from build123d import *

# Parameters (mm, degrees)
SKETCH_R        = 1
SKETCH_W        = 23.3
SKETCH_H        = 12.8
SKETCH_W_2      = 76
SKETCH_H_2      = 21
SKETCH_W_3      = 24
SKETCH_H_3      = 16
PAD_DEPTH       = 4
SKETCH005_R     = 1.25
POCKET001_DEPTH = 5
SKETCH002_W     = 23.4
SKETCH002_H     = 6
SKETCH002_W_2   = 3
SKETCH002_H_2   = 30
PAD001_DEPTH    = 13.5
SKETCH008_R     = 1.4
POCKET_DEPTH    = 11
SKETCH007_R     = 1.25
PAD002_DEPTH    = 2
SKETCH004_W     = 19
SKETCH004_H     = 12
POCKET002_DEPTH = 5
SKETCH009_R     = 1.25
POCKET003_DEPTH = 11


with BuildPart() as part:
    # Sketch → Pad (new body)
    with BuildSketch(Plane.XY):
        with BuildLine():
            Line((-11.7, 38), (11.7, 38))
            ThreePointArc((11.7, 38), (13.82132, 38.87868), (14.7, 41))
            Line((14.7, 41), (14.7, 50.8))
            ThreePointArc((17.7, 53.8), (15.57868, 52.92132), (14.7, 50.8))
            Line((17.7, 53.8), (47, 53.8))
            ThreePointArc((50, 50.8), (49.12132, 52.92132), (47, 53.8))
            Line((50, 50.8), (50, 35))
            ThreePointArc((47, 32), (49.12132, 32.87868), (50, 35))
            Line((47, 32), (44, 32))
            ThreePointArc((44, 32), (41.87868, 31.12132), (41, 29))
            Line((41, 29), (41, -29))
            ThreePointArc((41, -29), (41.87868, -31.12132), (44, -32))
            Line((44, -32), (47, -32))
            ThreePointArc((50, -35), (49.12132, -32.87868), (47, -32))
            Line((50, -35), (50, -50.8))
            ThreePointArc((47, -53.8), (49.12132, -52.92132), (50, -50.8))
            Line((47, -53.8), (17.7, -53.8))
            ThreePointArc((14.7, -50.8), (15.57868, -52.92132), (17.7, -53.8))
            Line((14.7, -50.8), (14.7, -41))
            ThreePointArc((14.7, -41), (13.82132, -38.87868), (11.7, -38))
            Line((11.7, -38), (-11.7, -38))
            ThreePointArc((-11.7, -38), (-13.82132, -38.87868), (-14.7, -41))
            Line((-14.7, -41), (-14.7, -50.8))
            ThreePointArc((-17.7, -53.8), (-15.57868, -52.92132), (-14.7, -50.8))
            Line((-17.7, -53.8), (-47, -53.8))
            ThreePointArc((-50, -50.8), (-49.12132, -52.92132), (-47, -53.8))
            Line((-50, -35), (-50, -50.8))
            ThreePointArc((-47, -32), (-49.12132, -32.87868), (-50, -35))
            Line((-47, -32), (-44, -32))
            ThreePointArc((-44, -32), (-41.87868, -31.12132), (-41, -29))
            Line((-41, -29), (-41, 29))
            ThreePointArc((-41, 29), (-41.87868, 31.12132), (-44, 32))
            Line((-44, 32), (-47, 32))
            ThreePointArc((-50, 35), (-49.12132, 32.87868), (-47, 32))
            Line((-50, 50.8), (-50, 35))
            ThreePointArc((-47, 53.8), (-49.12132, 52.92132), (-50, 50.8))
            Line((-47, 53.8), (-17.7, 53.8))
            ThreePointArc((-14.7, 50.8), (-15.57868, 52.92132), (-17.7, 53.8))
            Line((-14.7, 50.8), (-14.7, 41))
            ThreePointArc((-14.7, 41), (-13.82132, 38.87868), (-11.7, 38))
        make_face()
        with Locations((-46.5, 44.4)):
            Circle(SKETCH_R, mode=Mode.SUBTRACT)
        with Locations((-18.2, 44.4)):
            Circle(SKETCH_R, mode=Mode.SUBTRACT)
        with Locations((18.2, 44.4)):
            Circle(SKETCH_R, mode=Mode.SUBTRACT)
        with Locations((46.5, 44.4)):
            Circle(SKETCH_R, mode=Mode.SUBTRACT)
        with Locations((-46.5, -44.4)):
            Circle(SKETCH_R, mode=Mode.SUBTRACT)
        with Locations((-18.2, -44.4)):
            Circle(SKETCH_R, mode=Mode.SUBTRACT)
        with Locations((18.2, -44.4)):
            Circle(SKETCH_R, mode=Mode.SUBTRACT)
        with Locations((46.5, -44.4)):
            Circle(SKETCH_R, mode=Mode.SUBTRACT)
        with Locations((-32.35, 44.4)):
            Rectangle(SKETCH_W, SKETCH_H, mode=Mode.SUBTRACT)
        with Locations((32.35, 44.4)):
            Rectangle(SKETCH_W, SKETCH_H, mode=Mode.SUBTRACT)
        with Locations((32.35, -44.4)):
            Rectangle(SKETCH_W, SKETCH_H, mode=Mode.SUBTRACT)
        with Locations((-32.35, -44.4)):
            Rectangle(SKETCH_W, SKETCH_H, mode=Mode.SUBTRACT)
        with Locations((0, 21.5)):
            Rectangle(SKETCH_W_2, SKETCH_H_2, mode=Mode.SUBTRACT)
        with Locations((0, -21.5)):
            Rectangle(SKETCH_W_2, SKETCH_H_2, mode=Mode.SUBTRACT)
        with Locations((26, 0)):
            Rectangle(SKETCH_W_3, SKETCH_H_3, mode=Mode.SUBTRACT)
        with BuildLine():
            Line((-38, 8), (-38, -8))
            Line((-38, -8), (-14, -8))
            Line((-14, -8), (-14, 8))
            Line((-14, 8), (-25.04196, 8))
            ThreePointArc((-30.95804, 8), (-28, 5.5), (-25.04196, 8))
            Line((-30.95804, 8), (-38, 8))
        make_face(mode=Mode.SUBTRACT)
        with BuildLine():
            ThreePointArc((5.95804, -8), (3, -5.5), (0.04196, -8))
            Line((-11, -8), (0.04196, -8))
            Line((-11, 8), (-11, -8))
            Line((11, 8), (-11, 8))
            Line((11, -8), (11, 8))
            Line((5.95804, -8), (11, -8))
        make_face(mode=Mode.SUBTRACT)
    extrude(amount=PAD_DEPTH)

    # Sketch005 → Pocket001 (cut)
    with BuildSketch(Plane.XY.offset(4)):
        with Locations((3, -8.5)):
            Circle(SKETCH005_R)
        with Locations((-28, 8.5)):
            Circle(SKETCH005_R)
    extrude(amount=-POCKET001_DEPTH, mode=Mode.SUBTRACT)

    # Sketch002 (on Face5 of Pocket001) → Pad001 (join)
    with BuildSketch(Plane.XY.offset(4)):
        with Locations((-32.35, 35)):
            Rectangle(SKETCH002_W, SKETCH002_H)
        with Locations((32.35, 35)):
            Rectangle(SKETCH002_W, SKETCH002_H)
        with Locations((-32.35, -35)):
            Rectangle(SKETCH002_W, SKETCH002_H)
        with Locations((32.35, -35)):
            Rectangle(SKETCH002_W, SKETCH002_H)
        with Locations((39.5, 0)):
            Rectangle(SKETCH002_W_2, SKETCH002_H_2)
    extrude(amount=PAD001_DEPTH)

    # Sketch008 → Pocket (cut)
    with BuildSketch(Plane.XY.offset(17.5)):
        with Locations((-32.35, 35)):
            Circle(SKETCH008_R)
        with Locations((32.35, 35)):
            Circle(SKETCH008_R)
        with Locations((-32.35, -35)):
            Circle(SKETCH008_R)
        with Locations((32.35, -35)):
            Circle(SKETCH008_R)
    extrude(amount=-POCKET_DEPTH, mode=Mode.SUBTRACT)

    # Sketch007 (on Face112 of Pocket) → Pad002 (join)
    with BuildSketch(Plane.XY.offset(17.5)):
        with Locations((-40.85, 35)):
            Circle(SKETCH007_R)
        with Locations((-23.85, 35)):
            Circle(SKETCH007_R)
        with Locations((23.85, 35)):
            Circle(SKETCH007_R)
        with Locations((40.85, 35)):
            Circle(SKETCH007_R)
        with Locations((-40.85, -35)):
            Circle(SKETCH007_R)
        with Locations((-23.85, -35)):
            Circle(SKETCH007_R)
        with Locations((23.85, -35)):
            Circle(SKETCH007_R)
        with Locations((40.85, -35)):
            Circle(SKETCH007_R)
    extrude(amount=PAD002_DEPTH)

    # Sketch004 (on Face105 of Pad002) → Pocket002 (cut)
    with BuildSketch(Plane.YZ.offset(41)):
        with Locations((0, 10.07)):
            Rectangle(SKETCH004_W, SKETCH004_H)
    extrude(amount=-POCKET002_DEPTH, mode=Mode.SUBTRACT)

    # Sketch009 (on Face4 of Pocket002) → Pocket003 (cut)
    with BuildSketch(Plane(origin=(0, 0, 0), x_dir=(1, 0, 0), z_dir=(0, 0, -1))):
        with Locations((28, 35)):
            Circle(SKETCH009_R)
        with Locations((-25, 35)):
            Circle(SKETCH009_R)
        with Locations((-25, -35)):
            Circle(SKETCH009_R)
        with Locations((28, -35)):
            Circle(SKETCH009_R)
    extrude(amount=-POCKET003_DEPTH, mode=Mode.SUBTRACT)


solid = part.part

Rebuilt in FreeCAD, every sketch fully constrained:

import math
import FreeCAD as App
import Part
import Sketcher

V = App.Vector
Q = App.Units.Quantity


def add_polygon(sketch, points):
    """Adds a closed chain of lines whose ends are joined by coincident constraints."""
    first, n = sketch.GeometryCount, len(points)
    for a, b in zip(points, points[1:] + points[:1]):
        sketch.addGeometry(Part.LineSegment(App.Vector(*a, 0), App.Vector(*b, 0)), False)
    for i in range(n):
        sketch.addConstraint(Sketcher.Constraint("Coincident", first + i, 2, first + (i + 1) % n, 1))

doc = App.newDocument("Part")
body = doc.addObject("PartDesign::Body", "Body")

# Sketch on XY plane
sketch1 = doc.addObject("Sketcher::SketchObject", "Sketch")
body.addObject(sketch1)
sketch1.AttachmentSupport = (doc.XY_Plane, [""])
sketch1.MapMode = "FlatFace"
sketch1.addGeometry(Part.LineSegment(V(11.7, 38, 0), V(-11.7, 38, 0)), False)  # 0
sketch1.addGeometry(Part.ArcOfCircle(Part.Circle(V(-11.699999, 41.000001, 0), V(0, 0, 1), 3.000001), math.radians(-179.999978), math.radians(-90.000022)), False)  # 1
sketch1.addGeometry(Part.LineSegment(V(-14.7, 41, 0), V(-14.7, 50.8, 0)), False)  # 2
sketch1.addGeometry(Part.ArcOfCircle(Part.Circle(V(-17.700001, 50.799999, 0), V(0, 0, 1), 3.000001), math.radians(0.000022), math.radians(89.999978)), False)  # 3
sketch1.addGeometry(Part.LineSegment(V(-17.7, 53.8, 0), V(-47, 53.8, 0)), False)  # 4
sketch1.addGeometry(Part.ArcOfCircle(Part.Circle(V(-46.999999, 50.799999, 0), V(0, 0, 1), 3.000001), math.radians(90.000022), math.radians(179.999978)), False)  # 5
sketch1.addGeometry(Part.LineSegment(V(-50, 50.8, 0), V(-50, 35, 0)), False)  # 6
sketch1.addGeometry(Part.ArcOfCircle(Part.Circle(V(-46.999999, 35.000001, 0), V(0, 0, 1), 3.000001), math.radians(-179.999978), math.radians(-90.000022)), False)  # 7
sketch1.addGeometry(Part.LineSegment(V(-47, 32, 0), V(-44, 32, 0)), False)  # 8
sketch1.addGeometry(Part.ArcOfCircle(Part.Circle(V(-44.000001, 28.999999, 0), V(0, 0, 1), 3.000001), math.radians(0.000022), math.radians(89.999978)), False)  # 9
sketch1.addGeometry(Part.LineSegment(V(-41, 29, 0), V(-41, -29, 0)), False)  # 10
sketch1.addGeometry(Part.ArcOfCircle(Part.Circle(V(-44.000001, -28.999999, 0), V(0, 0, 1), 3.000001), math.radians(-89.999978), math.radians(-0.000022)), False)  # 11
sketch1.addGeometry(Part.LineSegment(V(-44, -32, 0), V(-47, -32, 0)), False)  # 12
sketch1.addGeometry(Part.ArcOfCircle(Part.Circle(V(-46.999999, -35.000001, 0), V(0, 0, 1), 3.000001), math.radians(90.000022), math.radians(179.999978)), False)  # 13
sketch1.addGeometry(Part.LineSegment(V(-50, -35, 0), V(-50, -50.8, 0)), False)  # 14
sketch1.addGeometry(Part.ArcOfCircle(Part.Circle(V(-46.999999, -50.799999, 0), V(0, 0, 1), 3.000001), math.radians(-179.999978), math.radians(-90.000022)), False)  # 15
sketch1.addGeometry(Part.LineSegment(V(-47, -53.8, 0), V(-17.7, -53.8, 0)), False)  # 16
sketch1.addGeometry(Part.ArcOfCircle(Part.Circle(V(-17.700001, -50.799999, 0), V(0, 0, 1), 3.000001), math.radians(-89.999978), math.radians(-0.000022)), False)  # 17
sketch1.addGeometry(Part.LineSegment(V(-14.7, -50.8, 0), V(-14.7, -41, 0)), False)  # 18
sketch1.addGeometry(Part.ArcOfCircle(Part.Circle(V(-11.699999, -41.000001, 0), V(0, 0, 1), 3.000001), math.radians(90.000022), math.radians(179.999978)), False)  # 19
sketch1.addGeometry(Part.LineSegment(V(-11.7, -38, 0), V(11.7, -38, 0)), False)  # 20
sketch1.addGeometry(Part.ArcOfCircle(Part.Circle(V(11.699999, -41.000001, 0), V(0, 0, 1), 3.000001), math.radians(0.000022), math.radians(89.999978)), False)  # 21
sketch1.addGeometry(Part.LineSegment(V(14.7, -41, 0), V(14.7, -50.8, 0)), False)  # 22
sketch1.addGeometry(Part.ArcOfCircle(Part.Circle(V(17.700001, -50.799999, 0), V(0, 0, 1), 3.000001), math.radians(-179.999978), math.radians(-90.000022)), False)  # 23
sketch1.addGeometry(Part.LineSegment(V(17.7, -53.8, 0), V(47, -53.8, 0)), False)  # 24
sketch1.addGeometry(Part.ArcOfCircle(Part.Circle(V(46.999999, -50.799999, 0), V(0, 0, 1), 3.000001), math.radians(-89.999978), math.radians(-0.000022)), False)  # 25
sketch1.addGeometry(Part.LineSegment(V(50, -50.8, 0), V(50, -35, 0)), False)  # 26
sketch1.addGeometry(Part.ArcOfCircle(Part.Circle(V(46.999999, -35.000001, 0), V(0, 0, 1), 3.000001), math.radians(0.000022), math.radians(89.999978)), False)  # 27
sketch1.addGeometry(Part.LineSegment(V(47, -32, 0), V(44, -32, 0)), False)  # 28
sketch1.addGeometry(Part.ArcOfCircle(Part.Circle(V(44.000001, -28.999999, 0), V(0, 0, 1), 3.000001), math.radians(-179.999978), math.radians(-90.000022)), False)  # 29
sketch1.addGeometry(Part.LineSegment(V(41, -29, 0), V(41, 29, 0)), False)  # 30
sketch1.addGeometry(Part.ArcOfCircle(Part.Circle(V(44.000001, 28.999999, 0), V(0, 0, 1), 3.000001), math.radians(90.000022), math.radians(179.999978)), False)  # 31
sketch1.addGeometry(Part.LineSegment(V(44, 32, 0), V(47, 32, 0)), False)  # 32
sketch1.addGeometry(Part.ArcOfCircle(Part.Circle(V(46.999999, 35.000001, 0), V(0, 0, 1), 3.000001), math.radians(-89.999978), math.radians(-0.000022)), False)  # 33
sketch1.addGeometry(Part.LineSegment(V(50, 35, 0), V(50, 50.8, 0)), False)  # 34
sketch1.addGeometry(Part.ArcOfCircle(Part.Circle(V(46.999999, 50.799999, 0), V(0, 0, 1), 3.000001), math.radians(0.000022), math.radians(89.999978)), False)  # 35
sketch1.addGeometry(Part.LineSegment(V(47, 53.8, 0), V(17.7, 53.8, 0)), False)  # 36
sketch1.addGeometry(Part.ArcOfCircle(Part.Circle(V(17.700001, 50.799999, 0), V(0, 0, 1), 3.000001), math.radians(90.000022), math.radians(179.999978)), False)  # 37
sketch1.addGeometry(Part.LineSegment(V(14.7, 50.8, 0), V(14.7, 41, 0)), False)  # 38
sketch1.addGeometry(Part.ArcOfCircle(Part.Circle(V(11.699999, 41.000001, 0), V(0, 0, 1), 3.000001), math.radians(-89.999978), math.radians(-0.000022)), False)  # 39
sketch1.addGeometry(Part.Circle(V(46.5, -44.4, 0), V(0, 0, 1), 1), False)  # 40
add_polygon(sketch1, [(20.7, -50.8), (20.7, -38), (44, -38), (44, -50.8)])  # lines 41-44
sketch1.addGeometry(Part.Circle(V(18.2, -44.4, 0), V(0, 0, 1), 1), False)  # 45
add_polygon(sketch1, [(14, -8), (14, 8), (38, 8), (38, -8)])  # lines 46-49
sketch1.addGeometry(Part.Circle(V(-18.2, -44.4, 0), V(0, 0, 1), 1), False)  # 50
add_polygon(sketch1, [(-44, -50.8), (-44, -38), (-20.7, -38), (-20.7, -50.8)])  # lines 51-54
sketch1.addGeometry(Part.Circle(V(-46.5, -44.4, 0), V(0, 0, 1), 1), False)  # 55
add_polygon(sketch1, [(-38, -32), (-38, -11), (38, -11), (38, -32)])  # lines 56-59
sketch1.addGeometry(Part.ArcOfCircle(Part.Circle(V(3, -8.5, 0), V(0, 0, 1), 3), math.radians(9.59407), math.radians(170.40593)), False)  # 60
sketch1.addGeometry(Part.LineSegment(V(0.04196, -8, 0), V(-11, -8, 0)), False)  # 61
sketch1.addGeometry(Part.LineSegment(V(-11, -8, 0), V(-11, 8, 0)), False)  # 62
sketch1.addGeometry(Part.LineSegment(V(-11, 8, 0), V(11, 8, 0)), False)  # 63
sketch1.addGeometry(Part.LineSegment(V(11, 8, 0), V(11, -8, 0)), False)  # 64
sketch1.addGeometry(Part.LineSegment(V(11, -8, 0), V(5.95804, -8, 0)), False)  # 65
sketch1.addGeometry(Part.LineSegment(V(-38, 8, 0), V(-30.95804, 8, 0)), False)  # 66
sketch1.addGeometry(Part.ArcOfCircle(Part.Circle(V(-28, 8.5, 0), V(0, 0, 1), 3), math.radians(-170.40593), math.radians(-9.59407)), False)  # 67
sketch1.addGeometry(Part.LineSegment(V(-25.04196, 8, 0), V(-14, 8, 0)), False)  # 68
sketch1.addGeometry(Part.LineSegment(V(-14, 8, 0), V(-14, -8, 0)), False)  # 69
sketch1.addGeometry(Part.LineSegment(V(-14, -8, 0), V(-38, -8, 0)), False)  # 70
sketch1.addGeometry(Part.LineSegment(V(-38, -8, 0), V(-38, 8, 0)), False)  # 71
sketch1.addGeometry(Part.Circle(V(46.5, 44.4, 0), V(0, 0, 1), 1), False)  # 72
add_polygon(sketch1, [(20.7, 38), (20.7, 50.8), (44, 50.8), (44, 38)])  # lines 73-76
sketch1.addGeometry(Part.Circle(V(18.2, 44.4, 0), V(0, 0, 1), 1), False)  # 77
add_polygon(sketch1, [(-38, 11), (-38, 32), (38, 32), (38, 11)])  # lines 78-81
sketch1.addGeometry(Part.Circle(V(-18.2, 44.4, 0), V(0, 0, 1), 1), False)  # 82
add_polygon(sketch1, [(-44, 38), (-44, 50.8), (-20.7, 50.8), (-20.7, 38)])  # lines 83-86
sketch1.addGeometry(Part.Circle(V(-46.5, 44.4, 0), V(0, 0, 1), 1), False)  # 87
sketch1.addConstraint([
    Sketcher.Constraint("Tangent", 0, 2, 1, 2),
    Sketcher.Constraint("Tangent", 1, 1, 2, 1),
    Sketcher.Constraint("Tangent", 2, 2, 3, 1),
    Sketcher.Constraint("Tangent", 3, 2, 4, 1),
    Sketcher.Constraint("Tangent", 4, 2, 5, 1),
    Sketcher.Constraint("Tangent", 5, 2, 6, 1),
    Sketcher.Constraint("Tangent", 6, 2, 7, 1),
    Sketcher.Constraint("Tangent", 7, 2, 8, 1),
    Sketcher.Constraint("Tangent", 8, 2, 9, 2),
    Sketcher.Constraint("Tangent", 9, 1, 10, 1),
    Sketcher.Constraint("Tangent", 10, 2, 11, 2),
    Sketcher.Constraint("Tangent", 11, 1, 12, 1),
    Sketcher.Constraint("Tangent", 12, 2, 13, 1),
    Sketcher.Constraint("Tangent", 13, 2, 14, 1),
    Sketcher.Constraint("Tangent", 14, 2, 15, 1),
    Sketcher.Constraint("Tangent", 15, 2, 16, 1),
    Sketcher.Constraint("Tangent", 16, 2, 17, 1),
    Sketcher.Constraint("Tangent", 17, 2, 18, 1),
    Sketcher.Constraint("Tangent", 18, 2, 19, 2),
    Sketcher.Constraint("Tangent", 19, 1, 20, 1),
    Sketcher.Constraint("Tangent", 20, 2, 21, 2),
    Sketcher.Constraint("Tangent", 21, 1, 22, 1),
    Sketcher.Constraint("Tangent", 22, 2, 23, 1),
    Sketcher.Constraint("Tangent", 23, 2, 24, 1),
    Sketcher.Constraint("Tangent", 24, 2, 25, 1),
    Sketcher.Constraint("Tangent", 25, 2, 26, 1),
    Sketcher.Constraint("Tangent", 26, 2, 27, 1),
    Sketcher.Constraint("Tangent", 27, 2, 28, 1),
    Sketcher.Constraint("Tangent", 28, 2, 29, 2),
    Sketcher.Constraint("Tangent", 29, 1, 30, 1),
    Sketcher.Constraint("Tangent", 30, 2, 31, 2),
    Sketcher.Constraint("Tangent", 31, 1, 32, 1),
    Sketcher.Constraint("Tangent", 32, 2, 33, 1),
    Sketcher.Constraint("Tangent", 33, 2, 34, 1),
    Sketcher.Constraint("Tangent", 34, 2, 35, 1),
    Sketcher.Constraint("Tangent", 35, 2, 36, 1),
    Sketcher.Constraint("Tangent", 36, 2, 37, 1),
    Sketcher.Constraint("Tangent", 37, 2, 38, 1),
    Sketcher.Constraint("Tangent", 38, 2, 39, 2),
    Sketcher.Constraint("Tangent", 39, 1, 0, 1),
    Sketcher.Constraint("Coincident", 60, 2, 61, 1),
    Sketcher.Constraint("Coincident", 61, 2, 62, 1),
    Sketcher.Constraint("Coincident", 62, 2, 63, 1),
    Sketcher.Constraint("Coincident", 63, 2, 64, 1),
    Sketcher.Constraint("Coincident", 64, 2, 65, 1),
    Sketcher.Constraint("Coincident", 65, 2, 60, 1),
    Sketcher.Constraint("Coincident", 66, 2, 67, 1),
    Sketcher.Constraint("Coincident", 67, 2, 68, 1),
    Sketcher.Constraint("Coincident", 68, 2, 69, 1),
    Sketcher.Constraint("Coincident", 69, 2, 70, 1),
    Sketcher.Constraint("Coincident", 70, 2, 71, 1),
    Sketcher.Constraint("Coincident", 71, 2, 66, 1),
    Sketcher.Constraint("Horizontal", 0),
    Sketcher.Constraint("Vertical", 2),
    Sketcher.Constraint("Horizontal", 4),
    Sketcher.Constraint("Vertical", 6),
    Sketcher.Constraint("Horizontal", 8),
    Sketcher.Constraint("Vertical", 10),
    Sketcher.Constraint("Horizontal", 12),
    Sketcher.Constraint("Vertical", 14),
    Sketcher.Constraint("Horizontal", 16),
    Sketcher.Constraint("Vertical", 18),
    Sketcher.Constraint("Horizontal", 20),
    Sketcher.Constraint("Vertical", 22),
    Sketcher.Constraint("Horizontal", 24),
    Sketcher.Constraint("Vertical", 26),
    Sketcher.Constraint("Horizontal", 28),
    Sketcher.Constraint("Vertical", 30),
    Sketcher.Constraint("Horizontal", 32),
    Sketcher.Constraint("Vertical", 34),
    Sketcher.Constraint("Horizontal", 36),
    Sketcher.Constraint("Vertical", 38),
    Sketcher.Constraint("Vertical", 41),
    Sketcher.Constraint("Horizontal", 42),
    Sketcher.Constraint("Vertical", 43),
    Sketcher.Constraint("Horizontal", 44),
    Sketcher.Constraint("Vertical", 46),
    Sketcher.Constraint("Horizontal", 47),
    Sketcher.Constraint("Vertical", 48),
    Sketcher.Constraint("Horizontal", 49),
    Sketcher.Constraint("Vertical", 51),
    Sketcher.Constraint("Horizontal", 52),
    Sketcher.Constraint("Vertical", 53),
    Sketcher.Constraint("Horizontal", 54),
    Sketcher.Constraint("Vertical", 56),
    Sketcher.Constraint("Horizontal", 57),
    Sketcher.Constraint("Vertical", 58),
    Sketcher.Constraint("Horizontal", 59),
    Sketcher.Constraint("Horizontal", 61),
    Sketcher.Constraint("Vertical", 62),
    Sketcher.Constraint("Horizontal", 63),
    Sketcher.Constraint("Vertical", 64),
    Sketcher.Constraint("Horizontal", 65),
    Sketcher.Constraint("Horizontal", 66),
    Sketcher.Constraint("Horizontal", 68),
    Sketcher.Constraint("Vertical", 69),
    Sketcher.Constraint("Horizontal", 70),
    Sketcher.Constraint("Vertical", 71),
    Sketcher.Constraint("Vertical", 73),
    Sketcher.Constraint("Horizontal", 74),
    Sketcher.Constraint("Vertical", 75),
    Sketcher.Constraint("Horizontal", 76),
    Sketcher.Constraint("Vertical", 78),
    Sketcher.Constraint("Horizontal", 79),
    Sketcher.Constraint("Vertical", 80),
    Sketcher.Constraint("Horizontal", 81),
    Sketcher.Constraint("Vertical", 83),
    Sketcher.Constraint("Horizontal", 84),
    Sketcher.Constraint("Vertical", 85),
    Sketcher.Constraint("Horizontal", 86),
    Sketcher.Constraint("Equal", 1, 3),
    Sketcher.Constraint("Equal", 3, 5),
    Sketcher.Constraint("Equal", 5, 7),
    Sketcher.Constraint("Equal", 7, 9),
    Sketcher.Constraint("Equal", 9, 11),
    Sketcher.Constraint("Equal", 11, 13),
    Sketcher.Constraint("Equal", 13, 15),
    Sketcher.Constraint("Equal", 15, 17),
    Sketcher.Constraint("Equal", 17, 19),
    Sketcher.Constraint("Equal", 19, 21),
    Sketcher.Constraint("Equal", 21, 23),
    Sketcher.Constraint("Equal", 23, 25),
    Sketcher.Constraint("Equal", 25, 27),
    Sketcher.Constraint("Equal", 27, 29),
    Sketcher.Constraint("Equal", 29, 31),
    Sketcher.Constraint("Equal", 31, 33),
    Sketcher.Constraint("Equal", 33, 35),
    Sketcher.Constraint("Equal", 35, 37),
    Sketcher.Constraint("Equal", 37, 39),
    Sketcher.Constraint("Equal", 40, 45),
    Sketcher.Constraint("Equal", 45, 50),
    Sketcher.Constraint("Equal", 50, 55),
    Sketcher.Constraint("Equal", 39, 60),
    Sketcher.Constraint("Equal", 60, 67),
    Sketcher.Constraint("Equal", 55, 72),
    Sketcher.Constraint("Equal", 72, 77),
    Sketcher.Constraint("Equal", 77, 82),
    Sketcher.Constraint("Equal", 82, 87),
    Sketcher.Constraint("Symmetric", 1, 3, 21, 3, -1, 1),
    Sketcher.Constraint("Symmetric", 5, 3, 25, 3, -1, 1),
    Sketcher.Constraint("Symmetric", 9, 3, 29, 3, -1, 1),
    Sketcher.Constraint("Symmetric", 13, 3, 33, 3, -1, 1),
    Sketcher.Constraint("Symmetric", 17, 3, 37, 3, -1, 1),
    Sketcher.Constraint("Symmetric", 55, 3, 72, 3, -1, 1),
    Sketcher.Constraint("Symmetric", 50, 3, 77, 3, -1, 1),
    Sketcher.Constraint("Symmetric", 45, 3, 82, 3, -1, 1),
    Sketcher.Constraint("Symmetric", 40, 3, 87, 3, -1, 1),
    Sketcher.Constraint("Symmetric", 61, 2, 63, 2, -1, 1),
    Sketcher.Constraint("Symmetric", 49, 2, 68, 2, -1, 1),
    Sketcher.Constraint("Symmetric", 47, 2, 70, 2, -1, 1),
    Sketcher.Constraint("Symmetric", 53, 2, 73, 2, -1, 1),
    Sketcher.Constraint("Symmetric", 51, 2, 75, 2, -1, 1),
    Sketcher.Constraint("Symmetric", 58, 2, 78, 2, -1, 1),
    Sketcher.Constraint("Symmetric", 56, 2, 80, 2, -1, 1),
    Sketcher.Constraint("Symmetric", 43, 2, 83, 2, -1, 1),
    Sketcher.Constraint("Symmetric", 41, 2, 85, 2, -1, 1),
    Sketcher.Constraint("Symmetric", 17, 3, 23, 3, -2),
    Sketcher.Constraint("Symmetric", 13, 3, 27, 3, -2),
    Sketcher.Constraint("Symmetric", 45, 3, 50, 3, -2),
    Sketcher.Constraint("Symmetric", 40, 3, 55, 3, -2),
    Sketcher.Constraint("Symmetric", 42, 2, 51, 2, -2),
    Sketcher.Constraint("Symmetric", 44, 2, 53, 2, -2),
    Sketcher.Constraint("Horizontal", 40, 3, 45, 3),
    Sketcher.Constraint("Horizontal", 20, 2, 41, 2),
    Sketcher.Constraint("Horizontal", 25, 2, 43, 2),
    Sketcher.Constraint("Horizontal", 28, 2, 58, 2),
    Sketcher.Constraint("Horizontal", 49, 2, 60, 2),
    Sketcher.Constraint("Horizontal", 47, 2, 62, 2),
    Sketcher.Constraint("Horizontal", 61, 2, 64, 2),
    Sketcher.Constraint("Horizontal", 63, 2, 66, 2),
    Sketcher.Constraint("Vertical", 31, 1, 42, 2),
    Sketcher.Constraint("Vertical", 48, 2, 57, 2),
    Sketcher.Constraint("Vertical", 59, 2, 70, 2),
    Sketcher.Constraint("Equal", 61, 68),
    Sketcher.Constraint("Diameter", 40, Q("2 mm")),
    Sketcher.Constraint("Radius", 1, Q("3.000001 mm")),
    Sketcher.Constraint("DistanceX", 8, 1, 8, 2, Q("3 mm")),
    Sketcher.Constraint("DistanceX", 47, 1, 47, 2, Q("24 mm")),
    Sketcher.Constraint("DistanceX", 57, 1, 57, 2, Q("76 mm")),
    Sketcher.Constraint("DistanceX", 63, 1, 63, 2, Q("22 mm")),
    Sketcher.Constraint("DistanceY", 10, 2, 10, 1, Q("58 mm")),
    Sketcher.Constraint("DistanceY", 46, 1, 46, 2, Q("16 mm")),
    Sketcher.Constraint("DistanceY", 56, 1, 56, 2, Q("21 mm")),
    Sketcher.Constraint("DistanceX", 0, 2, 0, 1, Q("23.4 mm")),
    Sketcher.Constraint("DistanceX", 4, 2, 4, 1, Q("29.3 mm")),
    Sketcher.Constraint("DistanceX", 42, 1, 42, 2, Q("23.3 mm")),
    Sketcher.Constraint("DistanceY", 2, 1, 2, 2, Q("9.8 mm")),
    Sketcher.Constraint("DistanceY", 6, 2, 6, 1, Q("15.8 mm")),
    Sketcher.Constraint("DistanceX", -1, 1, 60, 3, Q("3 mm")),
    Sketcher.Constraint("DistanceX", 67, 3, -1, 1, Q("28 mm")),
    Sketcher.Constraint("DistanceX", -1, 1, 40, 3, Q("46.5 mm")),
    Sketcher.Constraint("DistanceY", 40, 3, -1, 1, Q("44.4 mm")),
    Sketcher.Constraint("DistanceX", -1, 1, 45, 3, Q("18.2 mm")),
    Sketcher.Constraint("DistanceY", 60, 3, -1, 1, Q("8.5 mm")),
])
pad1 = doc.addObject("PartDesign::Pad", "Pad")
body.addObject(pad1)
pad1.Profile = sketch1
pad1.Length = 4

# Sketch on XY plane
sketch2 = doc.addObject("Sketcher::SketchObject", "Sketch001")
body.addObject(sketch2)
sketch2.AttachmentSupport = (doc.XY_Plane, [""])
sketch2.MapMode = "FlatFace"
sketch2.AttachmentOffset = App.Placement(V(0, 0, 4), App.Rotation())
sketch2.addGeometry([
    Part.Circle(V(3, -8.5, 0), V(0, 0, 1), 1.25),
    Part.Circle(V(-28, 8.5, 0), V(0, 0, 1), 1.25),
], False)
sketch2.addConstraint([
    Sketcher.Constraint("Equal", 0, 1),
    Sketcher.Constraint("Diameter", 0, Q("2.5 mm")),
    Sketcher.Constraint("DistanceX", -1, 1, 0, 3, Q("3 mm")),
    Sketcher.Constraint("DistanceX", 1, 3, -1, 1, Q("28 mm")),
    Sketcher.Constraint("DistanceY", 0, 3, 1, 3, Q("17 mm")),
    Sketcher.Constraint("DistanceY", 0, 3, -1, 1, Q("8.5 mm")),
])
pocket1 = doc.addObject("PartDesign::Pocket", "Pocket")
body.addObject(pocket1)
pocket1.Profile = sketch2
pocket1.Length = 5

# Sketch on XY plane
sketch3 = doc.addObject("Sketcher::SketchObject", "Sketch002")
body.addObject(sketch3)
sketch3.AttachmentSupport = (doc.XY_Plane, [""])
sketch3.MapMode = "FlatFace"
sketch3.AttachmentOffset = App.Placement(V(0, 0, 4), App.Rotation())
add_polygon(sketch3, [(-44.05, 38), (-44.05, 32), (-20.65, 32), (-20.65, 38)])  # lines 0-3
add_polygon(sketch3, [(20.65, 38), (20.65, 32), (44.05, 32), (44.05, 38)])  # lines 4-7
add_polygon(sketch3, [(-44.05, -32), (-44.05, -38), (-20.65, -38), (-20.65, -32)])  # lines 8-11
add_polygon(sketch3, [(20.65, -32), (20.65, -38), (44.05, -38), (44.05, -32)])  # lines 12-15
add_polygon(sketch3, [(38, 15), (38, -15), (41, -15), (41, 15)])  # lines 16-19
sketch3.addConstraint([
    Sketcher.Constraint("Vertical", 0),
    Sketcher.Constraint("Horizontal", 1),
    Sketcher.Constraint("Vertical", 2),
    Sketcher.Constraint("Horizontal", 3),
    Sketcher.Constraint("Vertical", 4),
    Sketcher.Constraint("Horizontal", 5),
    Sketcher.Constraint("Vertical", 6),
    Sketcher.Constraint("Horizontal", 7),
    Sketcher.Constraint("Vertical", 8),
    Sketcher.Constraint("Horizontal", 9),
    Sketcher.Constraint("Vertical", 10),
    Sketcher.Constraint("Horizontal", 11),
    Sketcher.Constraint("Vertical", 12),
    Sketcher.Constraint("Horizontal", 13),
    Sketcher.Constraint("Vertical", 14),
    Sketcher.Constraint("Horizontal", 15),
    Sketcher.Constraint("Vertical", 16),
    Sketcher.Constraint("Horizontal", 17),
    Sketcher.Constraint("Vertical", 18),
    Sketcher.Constraint("Horizontal", 19),
    Sketcher.Constraint("Symmetric", 6, 2, 8, 2, -1, 1),
    Sketcher.Constraint("Symmetric", 4, 2, 10, 2, -1, 1),
    Sketcher.Constraint("Symmetric", 2, 2, 12, 2, -1, 1),
    Sketcher.Constraint("Symmetric", 0, 2, 14, 2, -1, 1),
    Sketcher.Constraint("Symmetric", 1, 2, 4, 2, -2),
    Sketcher.Constraint("Symmetric", 3, 2, 6, 2, -2),
    Sketcher.Constraint("DistanceX", 17, 1, 17, 2, Q("3 mm")),
    Sketcher.Constraint("DistanceY", 0, 2, 0, 1, Q("6 mm")),
    Sketcher.Constraint("DistanceY", 16, 2, 16, 1, Q("30 mm")),
    Sketcher.Constraint("DistanceX", 1, 1, 1, 2, Q("23.4 mm")),
    Sketcher.Constraint("DistanceY", -1, 1, 0, 2, Q("32 mm")),
    Sketcher.Constraint("DistanceX", -1, 1, 16, 2, Q("38 mm")),
    Sketcher.Constraint("DistanceY", 16, 2, -1, 1, Q("15 mm")),
    Sketcher.Constraint("DistanceX", 1, 2, 4, 2, Q("41.3 mm")),
])
pad2 = doc.addObject("PartDesign::Pad", "Pad001")
body.addObject(pad2)
pad2.Profile = sketch3
pad2.Length = 13.5

# Sketch on XY plane
sketch4 = doc.addObject("Sketcher::SketchObject", "Sketch003")
body.addObject(sketch4)
sketch4.AttachmentSupport = (doc.XY_Plane, [""])
sketch4.MapMode = "FlatFace"
sketch4.AttachmentOffset = App.Placement(V(0, 0, 17.5), App.Rotation())
sketch4.addGeometry([
    Part.Circle(V(-32.35, 35, 0), V(0, 0, 1), 1.4),
    Part.Circle(V(32.35, 35, 0), V(0, 0, 1), 1.4),
    Part.Circle(V(-32.35, -35, 0), V(0, 0, 1), 1.4),
    Part.Circle(V(32.35, -35, 0), V(0, 0, 1), 1.4),
], False)
sketch4.addConstraint([
    Sketcher.Constraint("Equal", 0, 1),
    Sketcher.Constraint("Equal", 1, 2),
    Sketcher.Constraint("Equal", 2, 3),
    Sketcher.Constraint("Symmetric", 1, 3, 2, 3, -1, 1),
    Sketcher.Constraint("Symmetric", 0, 3, 3, 3, -1, 1),
    Sketcher.Constraint("Symmetric", 0, 3, 1, 3, -2),
    Sketcher.Constraint("Diameter", 0, Q("2.8 mm")),
    Sketcher.Constraint("DistanceY", -1, 1, 0, 3, Q("35 mm")),
    Sketcher.Constraint("DistanceX", 0, 3, 1, 3, Q("64.7 mm")),
])
pocket2 = doc.addObject("PartDesign::Pocket", "Pocket001")
body.addObject(pocket2)
pocket2.Profile = sketch4
pocket2.Length = 11

# Sketch on XY plane
sketch5 = doc.addObject("Sketcher::SketchObject", "Sketch004")
body.addObject(sketch5)
sketch5.AttachmentSupport = (doc.XY_Plane, [""])
sketch5.MapMode = "FlatFace"
sketch5.AttachmentOffset = App.Placement(V(0, 0, 17.5), App.Rotation())
sketch5.addGeometry([
    Part.Circle(V(-40.85, 35, 0), V(0, 0, 1), 1.25),  # 0
    Part.Circle(V(-23.85, 35, 0), V(0, 0, 1), 1.25),  # 1
    Part.Circle(V(23.85, 35, 0), V(0, 0, 1), 1.25),  # 2
    Part.Circle(V(40.85, 35, 0), V(0, 0, 1), 1.25),  # 3
    Part.Circle(V(-40.85, -35, 0), V(0, 0, 1), 1.25),  # 4
    Part.Circle(V(-23.85, -35, 0), V(0, 0, 1), 1.25),  # 5
    Part.Circle(V(23.85, -35, 0), V(0, 0, 1), 1.25),  # 6
    Part.Circle(V(40.85, -35, 0), V(0, 0, 1), 1.25),  # 7
], False)
sketch5.addConstraint([
    Sketcher.Constraint("Equal", 0, 1),
    Sketcher.Constraint("Equal", 1, 2),
    Sketcher.Constraint("Equal", 2, 3),
    Sketcher.Constraint("Equal", 3, 4),
    Sketcher.Constraint("Equal", 4, 5),
    Sketcher.Constraint("Equal", 5, 6),
    Sketcher.Constraint("Equal", 6, 7),
    Sketcher.Constraint("Symmetric", 3, 3, 4, 3, -1, 1),
    Sketcher.Constraint("Symmetric", 2, 3, 5, 3, -1, 1),
    Sketcher.Constraint("Symmetric", 1, 3, 6, 3, -1, 1),
    Sketcher.Constraint("Symmetric", 0, 3, 7, 3, -1, 1),
    Sketcher.Constraint("Symmetric", 1, 3, 2, 3, -2),
    Sketcher.Constraint("Symmetric", 0, 3, 3, 3, -2),
    Sketcher.Constraint("Horizontal", 0, 3, 1, 3),
    Sketcher.Constraint("Diameter", 0, Q("2.5 mm")),
    Sketcher.Constraint("DistanceY", -1, 1, 0, 3, Q("35 mm")),
    Sketcher.Constraint("DistanceX", 0, 3, 1, 3, Q("17 mm")),
    Sketcher.Constraint("DistanceX", 1, 3, 2, 3, Q("47.7 mm")),
])
pad3 = doc.addObject("PartDesign::Pad", "Pad002")
body.addObject(pad3)
pad3.Profile = sketch5
pad3.Length = 2

# Sketch on YZ plane
sketch6 = doc.addObject("Sketcher::SketchObject", "Sketch005")
body.addObject(sketch6)
sketch6.AttachmentSupport = (doc.YZ_Plane, [""])
sketch6.MapMode = "FlatFace"
sketch6.AttachmentOffset = App.Placement(V(0, 0, 41), App.Rotation())
add_polygon(sketch6, [(-9.5, 16.07), (-9.5, 4.07), (9.5, 4.07), (9.5, 16.07)])  # lines 0-3
sketch6.addConstraint([
    Sketcher.Constraint("Vertical", 0),
    Sketcher.Constraint("Horizontal", 1),
    Sketcher.Constraint("Vertical", 2),
    Sketcher.Constraint("Horizontal", 3),
    Sketcher.Constraint("DistanceX", 1, 1, 1, 2, Q("19 mm")),
    Sketcher.Constraint("DistanceY", 0, 2, 0, 1, Q("12 mm")),
    Sketcher.Constraint("DistanceX", 0, 2, -1, 1, Q("9.5 mm")),
    Sketcher.Constraint("DistanceY", -1, 1, 0, 2, Q("4.07 mm")),
])
pocket3 = doc.addObject("PartDesign::Pocket", "Pocket002")
body.addObject(pocket3)
pocket3.Profile = sketch6
pocket3.Length = 5

# Sketch on XY plane
sketch7 = doc.addObject("Sketcher::SketchObject", "Sketch006")
body.addObject(sketch7)
sketch7.AttachmentSupport = (doc.XY_Plane, [""])
sketch7.MapMode = "FlatFace"
sketch7.addGeometry([
    Part.Circle(V(28, -35, 0), V(0, 0, 1), 1.25),
    Part.Circle(V(-25, -35, 0), V(0, 0, 1), 1.25),
    Part.Circle(V(-25, 35, 0), V(0, 0, 1), 1.25),
    Part.Circle(V(28, 35, 0), V(0, 0, 1), 1.25),
], False)
sketch7.addConstraint([
    Sketcher.Constraint("Equal", 0, 1),
    Sketcher.Constraint("Equal", 1, 2),
    Sketcher.Constraint("Equal", 2, 3),
    Sketcher.Constraint("Symmetric", 1, 3, 2, 3, -1),
    Sketcher.Constraint("Symmetric", 0, 3, 3, 3, -1),
    Sketcher.Constraint("Horizontal", 0, 3, 1, 3),
    Sketcher.Constraint("Diameter", 0, Q("2.5 mm")),
    Sketcher.Constraint("DistanceX", -1, 1, 0, 3, Q("28 mm")),
    Sketcher.Constraint("DistanceY", 0, 3, -1, 1, Q("35 mm")),
    Sketcher.Constraint("DistanceX", 1, 3, -1, 1, Q("25 mm")),
])
pocket4 = doc.addObject("PartDesign::Pocket", "Pocket003")
body.addObject(pocket4)
pocket4.Profile = sketch7
pocket4.Length = 11
pocket4.Reversed = True

doc.recompute()
